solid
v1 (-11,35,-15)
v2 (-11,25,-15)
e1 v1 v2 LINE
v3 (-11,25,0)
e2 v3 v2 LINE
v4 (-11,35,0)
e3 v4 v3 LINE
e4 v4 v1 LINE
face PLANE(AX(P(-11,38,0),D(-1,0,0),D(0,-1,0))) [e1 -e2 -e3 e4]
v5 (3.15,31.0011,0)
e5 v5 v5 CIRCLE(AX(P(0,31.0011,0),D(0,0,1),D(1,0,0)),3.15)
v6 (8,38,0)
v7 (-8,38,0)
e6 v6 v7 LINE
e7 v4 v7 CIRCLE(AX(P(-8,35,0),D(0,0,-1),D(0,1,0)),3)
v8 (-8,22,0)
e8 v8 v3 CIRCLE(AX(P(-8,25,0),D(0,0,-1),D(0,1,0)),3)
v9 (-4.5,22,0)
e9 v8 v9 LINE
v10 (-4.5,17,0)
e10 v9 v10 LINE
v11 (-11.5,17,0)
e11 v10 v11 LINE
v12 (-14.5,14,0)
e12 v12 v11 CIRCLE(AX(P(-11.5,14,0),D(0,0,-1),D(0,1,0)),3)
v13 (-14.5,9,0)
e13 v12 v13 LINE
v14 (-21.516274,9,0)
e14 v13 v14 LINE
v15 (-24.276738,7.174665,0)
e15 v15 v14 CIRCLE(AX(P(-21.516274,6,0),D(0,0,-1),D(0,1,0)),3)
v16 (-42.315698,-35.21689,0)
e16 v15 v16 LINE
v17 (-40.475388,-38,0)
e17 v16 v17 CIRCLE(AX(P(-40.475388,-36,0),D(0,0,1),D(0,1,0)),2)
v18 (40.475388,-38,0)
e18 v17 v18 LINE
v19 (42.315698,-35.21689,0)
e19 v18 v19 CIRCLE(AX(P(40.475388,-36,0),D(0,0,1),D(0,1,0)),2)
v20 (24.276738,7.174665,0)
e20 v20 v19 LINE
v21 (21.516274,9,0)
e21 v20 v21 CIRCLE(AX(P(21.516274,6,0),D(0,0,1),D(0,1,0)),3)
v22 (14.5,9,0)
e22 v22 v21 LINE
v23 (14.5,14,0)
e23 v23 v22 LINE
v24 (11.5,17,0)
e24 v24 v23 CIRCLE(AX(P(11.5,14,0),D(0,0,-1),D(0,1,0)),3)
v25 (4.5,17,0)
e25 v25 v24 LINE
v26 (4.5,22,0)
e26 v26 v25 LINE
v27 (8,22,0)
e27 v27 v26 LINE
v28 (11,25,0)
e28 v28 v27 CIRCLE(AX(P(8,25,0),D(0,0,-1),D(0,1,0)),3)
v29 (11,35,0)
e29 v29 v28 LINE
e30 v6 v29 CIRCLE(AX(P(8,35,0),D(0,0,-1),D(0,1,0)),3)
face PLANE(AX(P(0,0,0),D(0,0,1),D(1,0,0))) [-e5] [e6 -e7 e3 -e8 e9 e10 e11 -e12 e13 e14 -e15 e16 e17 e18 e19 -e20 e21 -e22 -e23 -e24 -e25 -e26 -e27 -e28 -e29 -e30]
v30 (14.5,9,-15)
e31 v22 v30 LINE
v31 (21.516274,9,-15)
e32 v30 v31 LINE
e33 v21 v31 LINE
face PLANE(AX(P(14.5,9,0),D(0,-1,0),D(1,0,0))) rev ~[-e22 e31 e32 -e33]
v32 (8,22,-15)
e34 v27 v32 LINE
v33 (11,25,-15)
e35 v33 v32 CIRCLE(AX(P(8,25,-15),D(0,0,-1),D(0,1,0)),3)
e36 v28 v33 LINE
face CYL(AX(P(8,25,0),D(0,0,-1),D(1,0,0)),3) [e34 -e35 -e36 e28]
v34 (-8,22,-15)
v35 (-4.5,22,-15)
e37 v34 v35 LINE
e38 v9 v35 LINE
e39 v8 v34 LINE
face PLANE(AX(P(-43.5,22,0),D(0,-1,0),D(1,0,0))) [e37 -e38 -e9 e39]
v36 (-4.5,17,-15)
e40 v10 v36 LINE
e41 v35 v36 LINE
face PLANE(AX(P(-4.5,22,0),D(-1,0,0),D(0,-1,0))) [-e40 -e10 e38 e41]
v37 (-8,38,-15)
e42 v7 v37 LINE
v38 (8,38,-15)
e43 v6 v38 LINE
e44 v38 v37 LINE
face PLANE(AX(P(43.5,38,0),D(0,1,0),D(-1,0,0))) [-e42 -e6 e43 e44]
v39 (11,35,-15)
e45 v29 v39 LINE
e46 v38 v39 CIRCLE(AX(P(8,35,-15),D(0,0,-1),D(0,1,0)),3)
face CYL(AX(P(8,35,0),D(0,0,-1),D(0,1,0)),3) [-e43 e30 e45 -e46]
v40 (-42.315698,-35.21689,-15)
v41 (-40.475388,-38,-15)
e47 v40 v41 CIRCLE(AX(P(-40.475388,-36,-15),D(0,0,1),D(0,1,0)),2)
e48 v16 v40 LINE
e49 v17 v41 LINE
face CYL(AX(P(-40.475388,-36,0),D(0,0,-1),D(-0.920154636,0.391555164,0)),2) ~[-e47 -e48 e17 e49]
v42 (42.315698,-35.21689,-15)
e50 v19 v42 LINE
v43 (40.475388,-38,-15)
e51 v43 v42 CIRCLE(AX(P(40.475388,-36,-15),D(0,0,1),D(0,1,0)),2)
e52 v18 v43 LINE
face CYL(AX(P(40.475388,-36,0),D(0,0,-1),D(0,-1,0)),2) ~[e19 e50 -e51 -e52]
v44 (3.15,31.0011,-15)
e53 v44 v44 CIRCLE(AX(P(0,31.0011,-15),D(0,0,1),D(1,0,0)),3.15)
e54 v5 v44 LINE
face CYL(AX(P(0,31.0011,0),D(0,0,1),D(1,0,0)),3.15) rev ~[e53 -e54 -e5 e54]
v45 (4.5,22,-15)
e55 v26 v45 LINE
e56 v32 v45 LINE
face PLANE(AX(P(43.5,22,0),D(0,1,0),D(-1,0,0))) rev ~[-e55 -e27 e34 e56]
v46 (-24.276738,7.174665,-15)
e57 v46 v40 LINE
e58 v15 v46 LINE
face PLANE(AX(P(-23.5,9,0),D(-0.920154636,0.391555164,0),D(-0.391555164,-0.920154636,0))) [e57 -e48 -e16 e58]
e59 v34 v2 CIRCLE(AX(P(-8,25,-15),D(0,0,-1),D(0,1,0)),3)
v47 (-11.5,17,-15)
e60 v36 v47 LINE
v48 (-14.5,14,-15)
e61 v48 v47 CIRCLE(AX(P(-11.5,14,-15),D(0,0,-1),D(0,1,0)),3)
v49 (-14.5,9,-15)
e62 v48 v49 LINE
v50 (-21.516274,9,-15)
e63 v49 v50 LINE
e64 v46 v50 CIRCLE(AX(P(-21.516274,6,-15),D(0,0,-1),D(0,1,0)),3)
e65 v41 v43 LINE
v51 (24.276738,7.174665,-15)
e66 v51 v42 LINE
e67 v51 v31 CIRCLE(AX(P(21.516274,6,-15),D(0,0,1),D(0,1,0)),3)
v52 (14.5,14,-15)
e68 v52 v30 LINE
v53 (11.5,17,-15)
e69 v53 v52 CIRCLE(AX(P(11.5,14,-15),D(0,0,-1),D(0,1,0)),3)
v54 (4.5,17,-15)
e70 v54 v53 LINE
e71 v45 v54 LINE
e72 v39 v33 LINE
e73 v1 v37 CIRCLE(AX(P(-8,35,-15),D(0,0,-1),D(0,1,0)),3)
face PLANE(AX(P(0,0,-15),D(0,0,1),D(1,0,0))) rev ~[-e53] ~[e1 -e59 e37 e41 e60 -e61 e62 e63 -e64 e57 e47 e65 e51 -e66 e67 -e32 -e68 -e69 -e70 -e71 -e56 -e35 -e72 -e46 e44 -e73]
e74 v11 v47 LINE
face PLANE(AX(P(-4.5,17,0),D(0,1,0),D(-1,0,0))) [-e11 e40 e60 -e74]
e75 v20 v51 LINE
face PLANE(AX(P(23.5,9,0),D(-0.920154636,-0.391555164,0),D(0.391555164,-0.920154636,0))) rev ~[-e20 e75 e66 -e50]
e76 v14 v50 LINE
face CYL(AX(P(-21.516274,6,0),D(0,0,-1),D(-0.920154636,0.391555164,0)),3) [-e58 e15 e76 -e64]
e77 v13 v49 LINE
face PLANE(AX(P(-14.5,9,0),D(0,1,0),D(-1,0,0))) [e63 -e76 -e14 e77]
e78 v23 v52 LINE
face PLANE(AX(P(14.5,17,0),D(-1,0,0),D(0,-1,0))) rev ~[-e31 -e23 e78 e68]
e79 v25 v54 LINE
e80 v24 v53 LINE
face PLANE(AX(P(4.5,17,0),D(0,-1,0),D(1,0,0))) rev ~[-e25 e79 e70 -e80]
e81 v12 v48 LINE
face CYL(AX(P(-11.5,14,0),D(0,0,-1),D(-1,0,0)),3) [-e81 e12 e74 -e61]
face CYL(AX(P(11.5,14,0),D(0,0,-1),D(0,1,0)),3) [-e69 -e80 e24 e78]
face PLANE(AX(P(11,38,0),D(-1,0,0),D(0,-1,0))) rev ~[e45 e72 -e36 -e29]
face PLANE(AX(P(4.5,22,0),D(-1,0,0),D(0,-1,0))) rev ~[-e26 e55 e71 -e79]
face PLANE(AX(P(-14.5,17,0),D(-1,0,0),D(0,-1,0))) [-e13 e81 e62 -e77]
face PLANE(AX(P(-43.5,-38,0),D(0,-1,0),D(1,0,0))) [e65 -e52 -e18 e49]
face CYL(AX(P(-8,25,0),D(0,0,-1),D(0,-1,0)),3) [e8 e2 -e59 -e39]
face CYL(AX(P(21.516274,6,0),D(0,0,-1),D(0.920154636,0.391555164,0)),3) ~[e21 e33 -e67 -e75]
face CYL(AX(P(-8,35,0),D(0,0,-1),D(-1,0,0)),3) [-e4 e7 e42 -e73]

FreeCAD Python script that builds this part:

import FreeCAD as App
import Part
import Sketcher
from FreeCAD import Vector


def edges_at(feature, points):
    """Names of the edges that pass closest to the given points."""
    edges = feature.Shape.Edges
    near = lambda p: min(range(len(edges)), key=lambda i: edges[i].distToShape(Part.Vertex(*p))[0])
    return sorted({f"Edge{near(p) + 1}" for p in points})

doc = App.newDocument("Part")
body = doc.addObject("PartDesign::Body", "Body")

sketch1 = body.newObject("Sketcher::SketchObject", "Sketch")
sketch1.AttachmentSupport = (doc.getObject("XY_Plane"), [""])
sketch1.MapMode = "FlatFace"
sketch1.addGeometry([
    Part.LineSegment(Vector(-44, 38, 0), Vector(-44, -38, 0)),
    Part.LineSegment(Vector(-44, -38, 0), Vector(44, -38, 0)),
    Part.LineSegment(Vector(44, -38, 0), Vector(44, 38, 0)),
    Part.LineSegment(Vector(44, 38, 0), Vector(-44, 38, 0)),
], False)
sketch1.addConstraint([
    Sketcher.Constraint("Coincident", 0, 2, 1, 1),
    Sketcher.Constraint("Coincident", 1, 2, 2, 1),
    Sketcher.Constraint("Coincident", 2, 2, 3, 1),
    Sketcher.Constraint("Coincident", 3, 2, 0, 1),
    Sketcher.Constraint("Vertical", 0),
    Sketcher.Constraint("Horizontal", 1),
    Sketcher.Constraint("Vertical", 2),
    Sketcher.Constraint("Horizontal", 3),
    Sketcher.Constraint("Symmetric", 0, 2, 2, 2, -1, 1),
    Sketcher.Constraint("DistanceX", 1, 1, 1, 2, 87.0),
    Sketcher.Constraint("DistanceY", 0, 2, 0, 1, 76.0),
])
pad1 = body.newObject("PartDesign::Pad", "Pad")
pad1.Profile = sketch1
pad1.Length = 15
pad1.Reversed = True

sketch2 = body.newObject("Sketcher::SketchObject", "Sketch001")
sketch2.AttachmentSupport = (doc.getObject("XY_Plane"), [""])
sketch2.MapMode = "FlatFace"
sketch2.addGeometry([
    Part.LineSegment(Vector(-11, 38, 0), Vector(-44, 38, 0)),
    Part.LineSegment(Vector(-44, 38, 0), Vector(-44, 22, 0)),
    Part.LineSegment(Vector(-44, 22, 0), Vector(-11, 22, 0)),
    Part.LineSegment(Vector(-11, 22, 0), Vector(-11, 38, 0)),
    Part.LineSegment(Vector(44, 22, 0), Vector(44, 38, 0)),
    Part.LineSegment(Vector(44, 38, 0), Vector(11, 38, 0)),
    Part.LineSegment(Vector(11, 38, 0), Vector(11, 22, 0)),
    Part.LineSegment(Vector(11, 22, 0), Vector(44, 22, 0)),
], False)
sketch2.addConstraint([
    Sketcher.Constraint("Coincident", 0, 2, 1, 1),
    Sketcher.Constraint("Coincident", 1, 2, 2, 1),
    Sketcher.Constraint("Coincident", 2, 2, 3, 1),
    Sketcher.Constraint("Coincident", 3, 2, 0, 1),
    Sketcher.Constraint("Coincident", 4, 2, 5, 1),
    Sketcher.Constraint("Coincident", 5, 2, 6, 1),
    Sketcher.Constraint("Coincident", 6, 2, 7, 1),
    Sketcher.Constraint("Coincident", 7, 2, 4, 1),
    Sketcher.Constraint("Horizontal", 0),
    Sketcher.Constraint("Vertical", 1),
    Sketcher.Constraint("Horizontal", 2),
    Sketcher.Constraint("Vertical", 3),
    Sketcher.Constraint("Vertical", 4),
    Sketcher.Constraint("Horizontal", 5),
    Sketcher.Constraint("Vertical", 6),
    Sketcher.Constraint("Horizontal", 7),
    Sketcher.Constraint("Symmetric", 0, 2, 4, 2, -2),
    Sketcher.Constraint("Symmetric", 2, 2, 6, 2, -2),
    Sketcher.Constraint("DistanceY", 1, 2, 1, 1, 16.0),
    Sketcher.Constraint("DistanceX", 0, 2, 0, 1, 32.5),
    Sketcher.Constraint("DistanceY", -1, 1, 0, 2, 38.0),
    Sketcher.Constraint("DistanceX", 2, 2, -1, 1, 11.0),
])
pocket1 = body.newObject("PartDesign::Pocket", "Pocket")
pocket1.Profile = sketch2
pocket1.Length = 15

sketch3 = body.newObject("Sketcher::SketchObject", "Sketch002")
sketch3.AttachmentSupport = (doc.getObject("XY_Plane"), [""])
sketch3.MapMode = "FlatFace"
sketch3.addGeometry([
    Part.LineSegment(Vector(-4, 22, 0), Vector(-44, 22, 0)),
    Part.LineSegment(Vector(-44, 22, 0), Vector(-44, 17, 0)),
    Part.LineSegment(Vector(-44, 17, 0), Vector(-4, 17, 0)),
    Part.LineSegment(Vector(-4, 17, 0), Vector(-4, 22, 0)),
    Part.LineSegment(Vector(44, 17, 0), Vector(44, 22, 0)),
    Part.LineSegment(Vector(44, 22, 0), Vector(4, 22, 0)),
    Part.LineSegment(Vector(4, 22, 0), Vector(4, 17, 0)),
    Part.LineSegment(Vector(4, 17, 0), Vector(44, 17, 0)),
], False)
sketch3.addConstraint([
    Sketcher.Constraint("Coincident", 0, 2, 1, 1),
    Sketcher.Constraint("Coincident", 1, 2, 2, 1),
    Sketcher.Constraint("Coincident", 2, 2, 3, 1),
    Sketcher.Constraint("Coincident", 3, 2, 0, 1),
    Sketcher.Constraint("Coincident", 4, 2, 5, 1),
    Sketcher.Constraint("Coincident", 5, 2, 6, 1),
    Sketcher.Constraint("Coincident", 6, 2, 7, 1),
    Sketcher.Constraint("Coincident", 7, 2, 4, 1),
    Sketcher.Constraint("Horizontal", 0),
    Sketcher.Constraint("Vertical", 1),
    Sketcher.Constraint("Horizontal", 2),
    Sketcher.Constraint("Vertical", 3),
    Sketcher.Constraint("Vertical", 4),
    Sketcher.Constraint("Horizontal", 5),
    Sketcher.Constraint("Vertical", 6),
    Sketcher.Constraint("Horizontal", 7),
    Sketcher.Constraint("Symmetric", 0, 2, 4, 2, -2),
    Sketcher.Constraint("Symmetric", 2, 2, 6, 2, -2),
    Sketcher.Constraint("DistanceX", 0, 2, 0, 1, 39.0),
    Sketcher.Constraint("DistanceY", 1, 2, 1, 1, 5.0),
    Sketcher.Constraint("DistanceY", -1, 1, 0, 2, 22.0),
    Sketcher.Constraint("DistanceX", 3, 2, 4, 2, 48.0),
])
pocket2 = body.newObject("PartDesign::Pocket", "Pocket001")
pocket2.Profile = sketch3
pocket2.Length = 15

sketch4 = body.newObject("Sketcher::SketchObject", "Sketch003")
sketch4.AttachmentSupport = (doc.getObject("XY_Plane"), [""])
sketch4.MapMode = "FlatFace"
sketch4.addGeometry([
    Part.LineSegment(Vector(-14, 17, 0), Vector(-44, 17, 0)),
    Part.LineSegment(Vector(-44, 17, 0), Vector(-44, 9, 0)),
    Part.LineSegment(Vector(-44, 9, 0), Vector(-14, 9, 0)),
    Part.LineSegment(Vector(-14, 9, 0), Vector(-14, 17, 0)),
    Part.LineSegment(Vector(44, 9, 0), Vector(44, 17, 0)),
    Part.LineSegment(Vector(44, 17, 0), Vector(14, 17, 0)),
    Part.LineSegment(Vector(14, 17, 0), Vector(14, 9, 0)),
    Part.LineSegment(Vector(14, 9, 0), Vector(44, 9, 0)),
], False)
sketch4.addConstraint([
    Sketcher.Constraint("Coincident", 0, 2, 1, 1),
    Sketcher.Constraint("Coincident", 1, 2, 2, 1),
    Sketcher.Constraint("Coincident", 2, 2, 3, 1),
    Sketcher.Constraint("Coincident", 3, 2, 0, 1),
    Sketcher.Constraint("Coincident", 4, 2, 5, 1),
    Sketcher.Constraint("Coincident", 5, 2, 6, 1),
    Sketcher.Constraint("Coincident", 6, 2, 7, 1),
    Sketcher.Constraint("Coincident", 7, 2, 4, 1),
    Sketcher.Constraint("Horizontal", 0),
    Sketcher.Constraint("Vertical", 1),
    Sketcher.Constraint("Horizontal", 2),
    Sketcher.Constraint("Vertical", 3),
    Sketcher.Constraint("Vertical", 4),
    Sketcher.Constraint("Horizontal", 5),
    Sketcher.Constraint("Vertical", 6),
    Sketcher.Constraint("Horizontal", 7),
    Sketcher.Constraint("Symmetric", 0, 2, 4, 2, -2),
    Sketcher.Constraint("Symmetric", 2, 2, 6, 2, -2),
    Sketcher.Constraint("DistanceX", 0, 2, 0, 1, 29.0),
    Sketcher.Constraint("DistanceY", 1, 2, 1, 1, 8.0),
    Sketcher.Constraint("DistanceY", -1, 1, 0, 2, 17.0),
    Sketcher.Constraint("DistanceX", 3, 2, 4, 2, 58.0),
])
pocket3 = body.newObject("PartDesign::Pocket", "Pocket002")
pocket3.Profile = sketch4
pocket3.Length = 15

sketch5 = body.newObject("Sketcher::SketchObject", "Sketch004")
sketch5.AttachmentSupport = (doc.getObject("XY_Plane"), [""])
sketch5.MapMode = "FlatFace"
sketch5.addGeometry([
    Part.LineSegment(Vector(-44, -38, 0), Vector(-24, 9, 0)),
    Part.LineSegment(Vector(-24, 9, 0), Vector(-44, 9, 0)),
    Part.LineSegment(Vector(-44, 9, 0), Vector(-44, -38, 0)),
    Part.LineSegment(Vector(44, 9, 0), Vector(24, 9, 0)),
    Part.LineSegment(Vector(24, 9, 0), Vector(44, -38, 0)),
    Part.LineSegment(Vector(44, -38, 0), Vector(44, 9, 0)),
], False)
sketch5.addConstraint([
    Sketcher.Constraint("Coincident", 0, 2, 1, 1),
    Sketcher.Constraint("Coincident", 1, 2, 2, 1),
    Sketcher.Constraint("Coincident", 2, 2, 0, 1),
    Sketcher.Constraint("Coincident", 3, 2, 4, 1),
    Sketcher.Constraint("Coincident", 4, 2, 5, 1),
    Sketcher.Constraint("Coincident", 5, 2, 3, 1),
    Sketcher.Constraint("Horizontal", 1),
    Sketcher.Constraint("Vertical", 2),
    Sketcher.Constraint("Horizontal", 3),
    Sketcher.Constraint("Vertical", 5),
    Sketcher.Constraint("Symmetric", 0, 2, 3, 2, -2),
    Sketcher.Constraint("Symmetric", 2, 2, 4, 2, -2),
    Sketcher.Constraint("DistanceX", 1, 2, 1, 1, 20.0),
    Sketcher.Constraint("DistanceY", 2, 2, 2, 1, 47.0),
    Sketcher.Constraint("DistanceY", -1, 1, 0, 2, 9.0),
    Sketcher.Constraint("DistanceX", 0, 2, 3, 2, 47.0),
])
pocket4 = body.newObject("PartDesign::Pocket", "Pocket003")
pocket4.Profile = sketch5
pocket4.Length = 15
doc.recompute()

fillet = body.newObject("PartDesign::Fillet", "Fillet")
fillet.Base = (pocket4, edges_at(pocket4, [
    (23.5, 9, -7.5),
    (11, 22, -7.5),
    (11, 38, -7.5),
    (14.5, 17, -7.5),
    (-11, 38, -7.5),
    (-11, 22, -7.5),
    (-14.5, 17, -7.5),
    (-23.5, 9, -7.5),
]))
fillet.Radius = 3
doc.recompute()

fillet2 = body.newObject("PartDesign::Fillet", "Fillet001")
fillet2.Base = (fillet, edges_at(fillet, [(43.5, -38, -7.5), (-43.5, -38, -7.5)]))
fillet2.Radius = 2

sketch6 = body.newObject("Sketcher::SketchObject", "Sketch005")
sketch6.AttachmentSupport = (doc.getObject("XY_Plane"), [""])
sketch6.MapMode = "FlatFace"
sketch6.addGeometry(Part.Circle(Vector(0, 31, 0), Vector(0, 0, 1), 3.1), False)
sketch6.addConstraint([
    Sketcher.Constraint("PointOnObject", 0, 3, -2),
    Sketcher.Constraint("Diameter", 0, 6.3),
    Sketcher.Constraint("DistanceY", -1, 1, 0, 3, 31.001),
])
pocket5 = body.newObject("PartDesign::Pocket", "Pocket004")
pocket5.Profile = sketch6
pocket5.Length = 15

doc.recompute()
